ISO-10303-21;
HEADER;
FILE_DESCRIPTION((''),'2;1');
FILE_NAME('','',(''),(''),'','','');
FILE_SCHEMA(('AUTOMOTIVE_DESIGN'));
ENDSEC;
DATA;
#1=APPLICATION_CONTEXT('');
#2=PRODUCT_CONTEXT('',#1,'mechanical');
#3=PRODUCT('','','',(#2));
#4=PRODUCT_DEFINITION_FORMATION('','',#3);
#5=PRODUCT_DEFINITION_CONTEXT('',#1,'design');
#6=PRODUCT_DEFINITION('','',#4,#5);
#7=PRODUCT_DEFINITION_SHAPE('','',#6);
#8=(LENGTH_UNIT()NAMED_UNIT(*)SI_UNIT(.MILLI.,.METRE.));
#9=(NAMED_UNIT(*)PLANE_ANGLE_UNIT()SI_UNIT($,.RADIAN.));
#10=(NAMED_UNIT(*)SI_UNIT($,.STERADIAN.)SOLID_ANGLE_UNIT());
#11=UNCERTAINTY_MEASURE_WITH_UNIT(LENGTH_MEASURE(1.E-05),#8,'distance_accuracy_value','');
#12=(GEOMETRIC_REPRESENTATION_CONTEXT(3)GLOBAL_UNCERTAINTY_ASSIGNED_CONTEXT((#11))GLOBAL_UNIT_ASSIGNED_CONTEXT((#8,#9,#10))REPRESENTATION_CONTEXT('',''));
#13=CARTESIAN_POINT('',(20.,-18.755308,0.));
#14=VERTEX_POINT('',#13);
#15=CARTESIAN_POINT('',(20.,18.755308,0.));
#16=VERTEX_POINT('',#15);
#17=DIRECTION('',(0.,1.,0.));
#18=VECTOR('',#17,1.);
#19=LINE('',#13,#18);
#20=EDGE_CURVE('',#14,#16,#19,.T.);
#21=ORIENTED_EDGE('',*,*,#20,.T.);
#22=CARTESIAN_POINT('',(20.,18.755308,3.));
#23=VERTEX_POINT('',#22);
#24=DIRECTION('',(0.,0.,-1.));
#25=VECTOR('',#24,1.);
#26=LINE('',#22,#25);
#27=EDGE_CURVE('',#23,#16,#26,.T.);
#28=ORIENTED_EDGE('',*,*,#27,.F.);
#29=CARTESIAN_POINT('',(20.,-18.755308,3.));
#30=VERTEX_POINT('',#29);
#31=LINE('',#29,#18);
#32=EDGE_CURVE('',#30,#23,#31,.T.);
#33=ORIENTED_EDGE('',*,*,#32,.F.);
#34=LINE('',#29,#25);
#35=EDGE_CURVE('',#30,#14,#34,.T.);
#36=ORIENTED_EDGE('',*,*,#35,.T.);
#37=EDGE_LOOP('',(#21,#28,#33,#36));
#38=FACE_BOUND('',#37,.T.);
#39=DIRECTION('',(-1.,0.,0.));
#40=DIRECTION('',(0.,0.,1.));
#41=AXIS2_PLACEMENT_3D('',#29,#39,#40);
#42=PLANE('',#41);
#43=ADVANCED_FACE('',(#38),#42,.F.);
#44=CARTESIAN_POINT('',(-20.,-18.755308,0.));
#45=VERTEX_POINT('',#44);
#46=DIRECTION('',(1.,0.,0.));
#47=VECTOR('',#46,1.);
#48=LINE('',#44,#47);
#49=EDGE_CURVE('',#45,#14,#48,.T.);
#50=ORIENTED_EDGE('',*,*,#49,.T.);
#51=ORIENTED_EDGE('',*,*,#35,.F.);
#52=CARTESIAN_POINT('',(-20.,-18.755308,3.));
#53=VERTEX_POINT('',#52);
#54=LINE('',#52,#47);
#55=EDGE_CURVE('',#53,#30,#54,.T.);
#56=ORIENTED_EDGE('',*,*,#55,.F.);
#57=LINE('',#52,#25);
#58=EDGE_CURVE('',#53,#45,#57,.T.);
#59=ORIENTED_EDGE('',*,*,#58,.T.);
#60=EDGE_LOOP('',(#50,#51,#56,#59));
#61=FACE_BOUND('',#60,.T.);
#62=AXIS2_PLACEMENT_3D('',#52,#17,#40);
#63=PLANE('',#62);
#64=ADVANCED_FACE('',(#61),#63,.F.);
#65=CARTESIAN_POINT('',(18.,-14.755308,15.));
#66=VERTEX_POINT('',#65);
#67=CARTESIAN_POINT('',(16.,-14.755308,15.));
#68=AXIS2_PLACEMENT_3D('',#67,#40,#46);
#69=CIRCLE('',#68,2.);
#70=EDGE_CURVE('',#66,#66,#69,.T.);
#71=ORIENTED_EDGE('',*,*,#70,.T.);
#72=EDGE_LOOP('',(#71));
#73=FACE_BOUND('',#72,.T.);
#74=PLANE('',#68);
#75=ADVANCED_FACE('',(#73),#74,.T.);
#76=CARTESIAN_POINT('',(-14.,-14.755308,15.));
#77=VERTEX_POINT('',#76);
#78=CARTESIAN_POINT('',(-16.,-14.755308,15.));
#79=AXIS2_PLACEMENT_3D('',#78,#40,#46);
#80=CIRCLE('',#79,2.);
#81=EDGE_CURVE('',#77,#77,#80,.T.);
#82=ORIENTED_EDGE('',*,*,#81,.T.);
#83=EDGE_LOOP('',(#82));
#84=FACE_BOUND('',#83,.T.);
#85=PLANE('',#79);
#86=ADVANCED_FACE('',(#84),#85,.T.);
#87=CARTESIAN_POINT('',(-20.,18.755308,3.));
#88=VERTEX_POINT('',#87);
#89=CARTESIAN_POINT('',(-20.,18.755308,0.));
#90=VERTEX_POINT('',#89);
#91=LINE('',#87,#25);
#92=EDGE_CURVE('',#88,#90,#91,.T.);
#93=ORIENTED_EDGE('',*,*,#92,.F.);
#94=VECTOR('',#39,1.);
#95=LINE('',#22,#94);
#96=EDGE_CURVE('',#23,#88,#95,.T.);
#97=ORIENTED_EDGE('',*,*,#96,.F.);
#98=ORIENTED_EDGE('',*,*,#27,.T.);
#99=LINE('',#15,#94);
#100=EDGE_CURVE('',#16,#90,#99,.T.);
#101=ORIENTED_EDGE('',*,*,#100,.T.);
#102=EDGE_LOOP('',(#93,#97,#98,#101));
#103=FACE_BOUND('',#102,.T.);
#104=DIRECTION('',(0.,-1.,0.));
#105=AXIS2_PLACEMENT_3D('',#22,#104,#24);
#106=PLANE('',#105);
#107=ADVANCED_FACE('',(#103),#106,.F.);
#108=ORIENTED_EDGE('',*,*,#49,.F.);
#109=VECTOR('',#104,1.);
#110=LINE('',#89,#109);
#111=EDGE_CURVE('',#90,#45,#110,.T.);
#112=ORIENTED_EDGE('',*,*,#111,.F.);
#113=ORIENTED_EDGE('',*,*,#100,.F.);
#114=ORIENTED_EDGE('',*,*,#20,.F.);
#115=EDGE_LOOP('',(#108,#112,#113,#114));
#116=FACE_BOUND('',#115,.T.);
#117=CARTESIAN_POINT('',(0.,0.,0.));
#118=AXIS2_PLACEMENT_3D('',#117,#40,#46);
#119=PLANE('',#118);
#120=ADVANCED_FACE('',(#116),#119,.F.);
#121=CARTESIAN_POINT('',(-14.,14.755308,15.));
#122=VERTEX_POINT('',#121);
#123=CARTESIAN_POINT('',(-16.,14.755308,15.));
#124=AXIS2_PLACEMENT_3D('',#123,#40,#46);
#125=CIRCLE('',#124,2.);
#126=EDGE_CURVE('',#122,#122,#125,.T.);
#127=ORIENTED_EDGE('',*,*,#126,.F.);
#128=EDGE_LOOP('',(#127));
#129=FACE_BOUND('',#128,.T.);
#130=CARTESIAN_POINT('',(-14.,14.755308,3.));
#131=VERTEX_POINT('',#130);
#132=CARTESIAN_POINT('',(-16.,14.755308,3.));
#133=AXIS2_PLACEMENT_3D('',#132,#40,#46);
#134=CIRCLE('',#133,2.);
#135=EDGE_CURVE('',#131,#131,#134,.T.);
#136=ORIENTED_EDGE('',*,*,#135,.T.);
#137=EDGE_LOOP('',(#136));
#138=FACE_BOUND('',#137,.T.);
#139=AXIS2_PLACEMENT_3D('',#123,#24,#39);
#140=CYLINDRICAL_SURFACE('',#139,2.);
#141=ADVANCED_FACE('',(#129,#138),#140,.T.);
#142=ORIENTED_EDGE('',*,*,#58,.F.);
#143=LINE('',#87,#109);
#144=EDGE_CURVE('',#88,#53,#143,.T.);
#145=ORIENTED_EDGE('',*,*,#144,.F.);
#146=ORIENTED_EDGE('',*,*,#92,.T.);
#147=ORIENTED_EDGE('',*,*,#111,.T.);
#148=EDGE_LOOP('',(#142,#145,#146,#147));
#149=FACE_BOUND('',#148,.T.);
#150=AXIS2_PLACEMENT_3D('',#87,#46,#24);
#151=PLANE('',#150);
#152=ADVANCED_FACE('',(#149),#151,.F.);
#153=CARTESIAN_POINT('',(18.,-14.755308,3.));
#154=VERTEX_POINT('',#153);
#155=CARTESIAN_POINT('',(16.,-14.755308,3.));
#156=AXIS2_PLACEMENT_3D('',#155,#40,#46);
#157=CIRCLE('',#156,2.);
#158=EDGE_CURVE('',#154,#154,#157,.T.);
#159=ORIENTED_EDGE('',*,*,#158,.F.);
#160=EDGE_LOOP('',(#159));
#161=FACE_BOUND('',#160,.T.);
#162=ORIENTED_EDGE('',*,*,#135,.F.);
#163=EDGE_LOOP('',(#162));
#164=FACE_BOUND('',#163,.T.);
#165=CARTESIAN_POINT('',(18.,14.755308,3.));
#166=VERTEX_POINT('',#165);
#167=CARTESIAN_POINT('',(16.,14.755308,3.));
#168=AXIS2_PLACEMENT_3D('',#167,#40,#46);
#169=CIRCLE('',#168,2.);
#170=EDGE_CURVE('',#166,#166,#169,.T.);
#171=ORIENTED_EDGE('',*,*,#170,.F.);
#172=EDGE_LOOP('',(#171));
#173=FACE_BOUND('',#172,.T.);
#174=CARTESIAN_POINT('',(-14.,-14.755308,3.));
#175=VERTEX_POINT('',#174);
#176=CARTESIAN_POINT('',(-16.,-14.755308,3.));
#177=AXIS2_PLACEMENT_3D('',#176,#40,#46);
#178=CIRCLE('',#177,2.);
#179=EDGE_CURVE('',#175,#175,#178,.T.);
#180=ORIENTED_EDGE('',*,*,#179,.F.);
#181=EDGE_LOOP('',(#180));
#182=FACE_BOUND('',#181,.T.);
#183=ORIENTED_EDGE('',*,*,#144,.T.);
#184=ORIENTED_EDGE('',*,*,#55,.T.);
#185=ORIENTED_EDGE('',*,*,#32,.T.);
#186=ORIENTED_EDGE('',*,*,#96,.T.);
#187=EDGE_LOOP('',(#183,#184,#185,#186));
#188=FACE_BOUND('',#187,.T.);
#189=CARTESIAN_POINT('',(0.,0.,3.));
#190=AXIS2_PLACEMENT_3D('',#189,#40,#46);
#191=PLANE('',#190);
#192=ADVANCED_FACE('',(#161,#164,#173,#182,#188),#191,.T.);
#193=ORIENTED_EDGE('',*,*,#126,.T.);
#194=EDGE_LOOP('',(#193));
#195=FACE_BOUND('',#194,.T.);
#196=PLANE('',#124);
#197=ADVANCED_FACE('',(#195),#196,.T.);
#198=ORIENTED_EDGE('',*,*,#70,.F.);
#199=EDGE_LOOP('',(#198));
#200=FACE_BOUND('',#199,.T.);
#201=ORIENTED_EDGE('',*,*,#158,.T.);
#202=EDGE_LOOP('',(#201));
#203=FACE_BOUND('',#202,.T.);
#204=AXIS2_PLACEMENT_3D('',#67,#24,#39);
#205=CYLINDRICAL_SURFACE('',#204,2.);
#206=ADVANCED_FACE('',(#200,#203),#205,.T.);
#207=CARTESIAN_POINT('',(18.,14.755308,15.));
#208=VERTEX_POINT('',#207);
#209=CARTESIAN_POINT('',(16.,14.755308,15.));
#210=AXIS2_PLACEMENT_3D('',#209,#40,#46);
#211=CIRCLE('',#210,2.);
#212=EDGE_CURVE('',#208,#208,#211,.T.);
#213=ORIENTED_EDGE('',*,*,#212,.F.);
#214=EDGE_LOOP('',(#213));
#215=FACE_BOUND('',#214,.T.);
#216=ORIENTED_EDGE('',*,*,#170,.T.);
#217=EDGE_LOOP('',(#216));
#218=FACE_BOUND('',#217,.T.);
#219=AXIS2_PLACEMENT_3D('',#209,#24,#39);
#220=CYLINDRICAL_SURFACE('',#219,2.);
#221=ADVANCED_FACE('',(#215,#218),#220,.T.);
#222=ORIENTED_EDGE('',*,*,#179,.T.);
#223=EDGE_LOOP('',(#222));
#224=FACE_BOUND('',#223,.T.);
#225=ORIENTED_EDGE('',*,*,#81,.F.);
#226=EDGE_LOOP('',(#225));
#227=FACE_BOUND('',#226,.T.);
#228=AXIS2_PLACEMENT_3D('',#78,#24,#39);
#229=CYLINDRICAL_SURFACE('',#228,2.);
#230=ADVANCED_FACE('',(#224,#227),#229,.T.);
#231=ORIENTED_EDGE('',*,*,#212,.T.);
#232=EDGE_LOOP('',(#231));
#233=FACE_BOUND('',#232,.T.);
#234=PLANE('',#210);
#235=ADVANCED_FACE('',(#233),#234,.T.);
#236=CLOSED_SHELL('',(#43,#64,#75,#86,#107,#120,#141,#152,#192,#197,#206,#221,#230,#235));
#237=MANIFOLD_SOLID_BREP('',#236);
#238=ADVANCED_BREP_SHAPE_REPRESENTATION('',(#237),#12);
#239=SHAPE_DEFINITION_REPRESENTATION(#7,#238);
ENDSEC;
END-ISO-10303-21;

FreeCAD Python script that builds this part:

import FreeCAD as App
import Part
import Sketcher


def add_polygon(sketch, points):
    """Adds a closed chain of lines whose ends are joined by coincident constraints."""
    first, n = sketch.GeometryCount, len(points)
    for a, b in zip(points, points[1:] + points[:1]):
        sketch.addGeometry(Part.LineSegment(App.Vector(*a, 0), App.Vector(*b, 0)), False)
    for i in range(n):
        sketch.addConstraint(Sketcher.Constraint("Coincident", first + i, 2, first + (i + 1) % n, 1))

doc = App.newDocument("Part")
body = doc.addObject("PartDesign::Body", "Body")

sketch1 = body.newObject("Sketcher::SketchObject", "Sketch")
sketch1.AttachmentSupport = (doc.getObject("XY_Plane"), [""])
sketch1.MapMode = "FlatFace"
add_polygon(sketch1, [(-20, 19), (-20, -19), (20, -19), (20, 19)])
sketch1.addConstraint([
    Sketcher.Constraint("Vertical", 0),
    Sketcher.Constraint("Horizontal", 1),
    Sketcher.Constraint("Vertical", 2),
    Sketcher.Constraint("Horizontal", 3),
    Sketcher.Constraint("Symmetric", 0, 2, 2, 2, -1, 1),
    Sketcher.Constraint("DistanceX", 1, 1, 1, 2, 40.0),
    Sketcher.Constraint("DistanceY", 0, 2, 0, 1, 37.510616),
])
pad1 = body.newObject("PartDesign::Pad", "Pad")
pad1.Profile = sketch1
pad1.Length = 3

sketch2 = body.newObject("Sketcher::SketchObject", "Sketch001")
sketch2.AttachmentSupport = (doc.getObject("XY_Plane"), [""])
sketch2.MapMode = "FlatFace"
sketch2.AttachmentOffset = App.Placement(App.Vector(0, 0, 3), App.Rotation())
sketch2.addGeometry([
    Part.Circle(App.Vector(-16, -14.8, 0), App.Vector(0, 0, 1), 2),
    Part.Circle(App.Vector(-16, 14.8, 0), App.Vector(0, 0, 1), 2),
    Part.Circle(App.Vector(16, -14.8, 0), App.Vector(0, 0, 1), 2),
    Part.Circle(App.Vector(16, 14.8, 0), App.Vector(0, 0, 1), 2),
], False)
sketch2.addConstraint([
    Sketcher.Constraint("Equal", 0, 1),
    Sketcher.Constraint("Equal", 1, 2),
    Sketcher.Constraint("Equal", 2, 3),
    Sketcher.Constraint("Symmetric", 1, 3, 2, 3, -1, 1),
    Sketcher.Constraint("Symmetric", 0, 3, 3, 3, -1, 1),
    Sketcher.Constraint("Symmetric", 0, 3, 2, 3, -2),
    Sketcher.Constraint("Diameter", 0, 4.0),
    Sketcher.Constraint("DistanceX", 0, 3, -1, 1, 16.0),
    Sketcher.Constraint("DistanceY", 0, 3, -1, 1, 14.755308),
])
pad2 = body.newObject("PartDesign::Pad", "Pad001")
pad2.Profile = sketch2
pad2.Length = 12

doc.recompute()
